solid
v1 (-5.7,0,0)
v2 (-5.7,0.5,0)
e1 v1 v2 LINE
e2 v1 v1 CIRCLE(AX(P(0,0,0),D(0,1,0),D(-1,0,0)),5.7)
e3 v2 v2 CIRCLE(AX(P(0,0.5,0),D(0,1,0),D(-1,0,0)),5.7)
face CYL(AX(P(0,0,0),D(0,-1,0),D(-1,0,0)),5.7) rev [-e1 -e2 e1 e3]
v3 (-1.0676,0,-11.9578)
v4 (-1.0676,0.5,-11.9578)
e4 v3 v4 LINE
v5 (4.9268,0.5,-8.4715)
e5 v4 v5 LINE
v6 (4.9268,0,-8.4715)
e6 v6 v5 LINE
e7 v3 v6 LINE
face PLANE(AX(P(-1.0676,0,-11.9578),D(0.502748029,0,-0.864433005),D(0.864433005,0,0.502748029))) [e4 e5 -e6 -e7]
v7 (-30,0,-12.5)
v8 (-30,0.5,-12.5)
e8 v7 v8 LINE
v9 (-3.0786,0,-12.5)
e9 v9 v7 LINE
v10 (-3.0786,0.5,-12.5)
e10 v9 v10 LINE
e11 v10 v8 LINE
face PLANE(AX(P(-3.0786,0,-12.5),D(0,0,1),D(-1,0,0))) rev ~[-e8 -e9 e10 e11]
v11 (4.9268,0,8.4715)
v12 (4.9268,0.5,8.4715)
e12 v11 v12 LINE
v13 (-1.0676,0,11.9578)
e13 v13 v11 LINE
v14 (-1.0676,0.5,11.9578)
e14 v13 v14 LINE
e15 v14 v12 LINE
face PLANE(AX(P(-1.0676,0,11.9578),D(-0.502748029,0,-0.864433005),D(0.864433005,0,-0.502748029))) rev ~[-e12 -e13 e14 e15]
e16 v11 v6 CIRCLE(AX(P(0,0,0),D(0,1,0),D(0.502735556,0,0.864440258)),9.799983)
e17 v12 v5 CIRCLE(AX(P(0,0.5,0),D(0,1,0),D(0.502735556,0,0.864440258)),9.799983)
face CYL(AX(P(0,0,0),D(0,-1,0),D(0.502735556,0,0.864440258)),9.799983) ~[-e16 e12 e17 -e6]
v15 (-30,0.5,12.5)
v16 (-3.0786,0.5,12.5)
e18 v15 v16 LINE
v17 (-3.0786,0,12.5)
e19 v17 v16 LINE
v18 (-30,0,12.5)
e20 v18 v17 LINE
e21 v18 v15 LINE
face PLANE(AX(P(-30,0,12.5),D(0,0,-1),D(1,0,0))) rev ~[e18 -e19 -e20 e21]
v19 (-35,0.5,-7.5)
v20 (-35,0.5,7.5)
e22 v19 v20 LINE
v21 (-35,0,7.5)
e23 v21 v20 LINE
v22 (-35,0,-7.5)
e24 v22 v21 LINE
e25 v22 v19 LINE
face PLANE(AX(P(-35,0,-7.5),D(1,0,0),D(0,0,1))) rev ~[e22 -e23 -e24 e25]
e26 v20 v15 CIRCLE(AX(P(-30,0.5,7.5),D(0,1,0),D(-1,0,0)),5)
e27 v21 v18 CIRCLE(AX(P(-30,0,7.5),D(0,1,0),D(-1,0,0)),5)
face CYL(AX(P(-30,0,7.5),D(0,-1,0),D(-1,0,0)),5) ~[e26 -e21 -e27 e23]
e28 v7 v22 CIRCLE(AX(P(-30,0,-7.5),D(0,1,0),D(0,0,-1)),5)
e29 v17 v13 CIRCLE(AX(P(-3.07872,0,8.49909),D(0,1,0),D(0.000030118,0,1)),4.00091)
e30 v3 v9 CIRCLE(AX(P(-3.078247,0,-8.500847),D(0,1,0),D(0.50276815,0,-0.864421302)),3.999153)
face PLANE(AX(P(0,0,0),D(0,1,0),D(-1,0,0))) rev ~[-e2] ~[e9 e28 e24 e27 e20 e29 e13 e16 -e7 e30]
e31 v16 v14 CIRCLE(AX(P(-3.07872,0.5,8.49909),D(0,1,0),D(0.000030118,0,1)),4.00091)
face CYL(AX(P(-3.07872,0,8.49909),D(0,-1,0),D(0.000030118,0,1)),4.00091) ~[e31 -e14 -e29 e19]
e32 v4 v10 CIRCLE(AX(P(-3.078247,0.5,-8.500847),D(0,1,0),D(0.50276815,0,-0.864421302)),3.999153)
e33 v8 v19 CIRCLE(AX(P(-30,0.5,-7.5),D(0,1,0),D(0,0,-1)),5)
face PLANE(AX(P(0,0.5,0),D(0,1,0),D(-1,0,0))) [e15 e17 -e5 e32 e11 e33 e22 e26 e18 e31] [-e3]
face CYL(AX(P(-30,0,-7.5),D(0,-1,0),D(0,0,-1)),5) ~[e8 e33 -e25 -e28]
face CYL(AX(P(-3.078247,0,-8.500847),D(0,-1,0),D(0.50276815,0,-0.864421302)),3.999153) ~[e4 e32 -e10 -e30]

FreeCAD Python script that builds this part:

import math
import FreeCAD as App
import Part
import Sketcher

doc = App.newDocument("Part")
body = doc.addObject("PartDesign::Body", "Body")

sketch1 = body.newObject("Sketcher::SketchObject", "Sketch")
sketch1.AttachmentSupport = (doc.getObject("XZ_Plane"), [""])
sketch1.MapMode = "FlatFace"
sketch1.addGeometry(Part.ArcOfCircle(Part.Circle(App.Vector(-3.0786, -8.5, 0), App.Vector(0, 0, 1), 4.000063), math.radians(-90), math.radians(-59.818417)), False)
sketch1.addGeometry(Part.LineSegment(App.Vector(-3.0786, -12.5, 0), App.Vector(-30, -12.5, 0)), False)
sketch1.addGeometry(Part.ArcOfCircle(Part.Circle(App.Vector(-30, -7.5, 0), App.Vector(0, 0, 1), 5), math.radians(180), math.radians(270)), False)
sketch1.addGeometry(Part.LineSegment(App.Vector(-35, -7.5, 0), App.Vector(-35, 7.5, 0)), False)
sketch1.addGeometry(Part.ArcOfCircle(Part.Circle(App.Vector(-30, 7.5, 0), App.Vector(0, 0, 1), 5), math.radians(90), math.radians(180)), False)
sketch1.addGeometry(Part.LineSegment(App.Vector(-30, 12.5, 0), App.Vector(-3.0786, 12.5, 0)), False)
sketch1.addGeometry(Part.ArcOfCircle(Part.Circle(App.Vector(-3.0786, 8.5, 0), App.Vector(0, 0, 1), 4), math.radians(59.818417), math.radians(90)), False)
sketch1.addGeometry(Part.LineSegment(App.Vector(-1.0676, 11.9578, 0), App.Vector(4.9268, 8.4715, 0)), False)
sketch1.addGeometry(Part.ArcOfCircle(Part.Circle(App.Vector(0, 0, 0), App.Vector(0, 0, 1), 9.799983), math.radians(-59.818851), math.radians(59.818851)), False)
sketch1.addGeometry(Part.LineSegment(App.Vector(4.9268, -8.4715, 0), App.Vector(-1.0676, -11.9578, 0)), False)
sketch1.addGeometry(Part.Circle(App.Vector(0, 0, 0), App.Vector(0, 0, 1), 5.7), False)
sketch1.addConstraint(Sketcher.Constraint("Tangent", 0, 1, 1, 1))
sketch1.addConstraint(Sketcher.Constraint("Tangent", 1, 2, 2, 2))
sketch1.addConstraint(Sketcher.Constraint("Tangent", 2, 1, 3, 1))
sketch1.addConstraint(Sketcher.Constraint("Tangent", 3, 2, 4, 2))
sketch1.addConstraint(Sketcher.Constraint("Tangent", 4, 1, 5, 1))
sketch1.addConstraint(Sketcher.Constraint("Tangent", 5, 2, 6, 2))
sketch1.addConstraint(Sketcher.Constraint("Tangent", 6, 1, 7, 1))
sketch1.addConstraint(Sketcher.Constraint("Tangent", 7, 2, 8, 2))
sketch1.addConstraint(Sketcher.Constraint("Tangent", 8, 1, 9, 1))
sketch1.addConstraint(Sketcher.Constraint("Tangent", 9, 2, 0, 2))
sketch1.addConstraint(Sketcher.Constraint("Horizontal", 1))
sketch1.addConstraint(Sketcher.Constraint("Vertical", 3))
sketch1.addConstraint(Sketcher.Constraint("Horizontal", 5))
sketch1.addConstraint(Sketcher.Constraint("Coincident", 8, 3, -1, 1))
sketch1.addConstraint(Sketcher.Constraint("Coincident", 10, 3, -1, 1))
sketch1.addConstraint(Sketcher.Constraint("Equal", 2, 4))
sketch1.addConstraint(Sketcher.Constraint("Equal", 0, 6))
sketch1.addConstraint(Sketcher.Constraint("Symmetric", 0, 3, 6, 3, -1))
sketch1.addConstraint(Sketcher.Constraint("Radius", 0, 4.0))
sketch1.addConstraint(Sketcher.Constraint("Radius", 2, 5.0))
sketch1.addConstraint(Sketcher.Constraint("Diameter", 10, 11.4))
sketch1.addConstraint(Sketcher.Constraint("Radius", 8, 9.8))
sketch1.addConstraint(Sketcher.Constraint("DistanceY", 1, 2, 4, 1, 25.0))
sketch1.addConstraint(Sketcher.Constraint("DistanceX", 2, 3, -1, 1, 30.0))
sketch1.addConstraint(Sketcher.Constraint("DistanceX", 1, 2, 1, 1, 26.9214))
pad1 = body.newObject("PartDesign::Pad", "Pad")
pad1.Profile = sketch1
pad1.Length = 0.5
pad1.Reversed = True

doc.recompute()
